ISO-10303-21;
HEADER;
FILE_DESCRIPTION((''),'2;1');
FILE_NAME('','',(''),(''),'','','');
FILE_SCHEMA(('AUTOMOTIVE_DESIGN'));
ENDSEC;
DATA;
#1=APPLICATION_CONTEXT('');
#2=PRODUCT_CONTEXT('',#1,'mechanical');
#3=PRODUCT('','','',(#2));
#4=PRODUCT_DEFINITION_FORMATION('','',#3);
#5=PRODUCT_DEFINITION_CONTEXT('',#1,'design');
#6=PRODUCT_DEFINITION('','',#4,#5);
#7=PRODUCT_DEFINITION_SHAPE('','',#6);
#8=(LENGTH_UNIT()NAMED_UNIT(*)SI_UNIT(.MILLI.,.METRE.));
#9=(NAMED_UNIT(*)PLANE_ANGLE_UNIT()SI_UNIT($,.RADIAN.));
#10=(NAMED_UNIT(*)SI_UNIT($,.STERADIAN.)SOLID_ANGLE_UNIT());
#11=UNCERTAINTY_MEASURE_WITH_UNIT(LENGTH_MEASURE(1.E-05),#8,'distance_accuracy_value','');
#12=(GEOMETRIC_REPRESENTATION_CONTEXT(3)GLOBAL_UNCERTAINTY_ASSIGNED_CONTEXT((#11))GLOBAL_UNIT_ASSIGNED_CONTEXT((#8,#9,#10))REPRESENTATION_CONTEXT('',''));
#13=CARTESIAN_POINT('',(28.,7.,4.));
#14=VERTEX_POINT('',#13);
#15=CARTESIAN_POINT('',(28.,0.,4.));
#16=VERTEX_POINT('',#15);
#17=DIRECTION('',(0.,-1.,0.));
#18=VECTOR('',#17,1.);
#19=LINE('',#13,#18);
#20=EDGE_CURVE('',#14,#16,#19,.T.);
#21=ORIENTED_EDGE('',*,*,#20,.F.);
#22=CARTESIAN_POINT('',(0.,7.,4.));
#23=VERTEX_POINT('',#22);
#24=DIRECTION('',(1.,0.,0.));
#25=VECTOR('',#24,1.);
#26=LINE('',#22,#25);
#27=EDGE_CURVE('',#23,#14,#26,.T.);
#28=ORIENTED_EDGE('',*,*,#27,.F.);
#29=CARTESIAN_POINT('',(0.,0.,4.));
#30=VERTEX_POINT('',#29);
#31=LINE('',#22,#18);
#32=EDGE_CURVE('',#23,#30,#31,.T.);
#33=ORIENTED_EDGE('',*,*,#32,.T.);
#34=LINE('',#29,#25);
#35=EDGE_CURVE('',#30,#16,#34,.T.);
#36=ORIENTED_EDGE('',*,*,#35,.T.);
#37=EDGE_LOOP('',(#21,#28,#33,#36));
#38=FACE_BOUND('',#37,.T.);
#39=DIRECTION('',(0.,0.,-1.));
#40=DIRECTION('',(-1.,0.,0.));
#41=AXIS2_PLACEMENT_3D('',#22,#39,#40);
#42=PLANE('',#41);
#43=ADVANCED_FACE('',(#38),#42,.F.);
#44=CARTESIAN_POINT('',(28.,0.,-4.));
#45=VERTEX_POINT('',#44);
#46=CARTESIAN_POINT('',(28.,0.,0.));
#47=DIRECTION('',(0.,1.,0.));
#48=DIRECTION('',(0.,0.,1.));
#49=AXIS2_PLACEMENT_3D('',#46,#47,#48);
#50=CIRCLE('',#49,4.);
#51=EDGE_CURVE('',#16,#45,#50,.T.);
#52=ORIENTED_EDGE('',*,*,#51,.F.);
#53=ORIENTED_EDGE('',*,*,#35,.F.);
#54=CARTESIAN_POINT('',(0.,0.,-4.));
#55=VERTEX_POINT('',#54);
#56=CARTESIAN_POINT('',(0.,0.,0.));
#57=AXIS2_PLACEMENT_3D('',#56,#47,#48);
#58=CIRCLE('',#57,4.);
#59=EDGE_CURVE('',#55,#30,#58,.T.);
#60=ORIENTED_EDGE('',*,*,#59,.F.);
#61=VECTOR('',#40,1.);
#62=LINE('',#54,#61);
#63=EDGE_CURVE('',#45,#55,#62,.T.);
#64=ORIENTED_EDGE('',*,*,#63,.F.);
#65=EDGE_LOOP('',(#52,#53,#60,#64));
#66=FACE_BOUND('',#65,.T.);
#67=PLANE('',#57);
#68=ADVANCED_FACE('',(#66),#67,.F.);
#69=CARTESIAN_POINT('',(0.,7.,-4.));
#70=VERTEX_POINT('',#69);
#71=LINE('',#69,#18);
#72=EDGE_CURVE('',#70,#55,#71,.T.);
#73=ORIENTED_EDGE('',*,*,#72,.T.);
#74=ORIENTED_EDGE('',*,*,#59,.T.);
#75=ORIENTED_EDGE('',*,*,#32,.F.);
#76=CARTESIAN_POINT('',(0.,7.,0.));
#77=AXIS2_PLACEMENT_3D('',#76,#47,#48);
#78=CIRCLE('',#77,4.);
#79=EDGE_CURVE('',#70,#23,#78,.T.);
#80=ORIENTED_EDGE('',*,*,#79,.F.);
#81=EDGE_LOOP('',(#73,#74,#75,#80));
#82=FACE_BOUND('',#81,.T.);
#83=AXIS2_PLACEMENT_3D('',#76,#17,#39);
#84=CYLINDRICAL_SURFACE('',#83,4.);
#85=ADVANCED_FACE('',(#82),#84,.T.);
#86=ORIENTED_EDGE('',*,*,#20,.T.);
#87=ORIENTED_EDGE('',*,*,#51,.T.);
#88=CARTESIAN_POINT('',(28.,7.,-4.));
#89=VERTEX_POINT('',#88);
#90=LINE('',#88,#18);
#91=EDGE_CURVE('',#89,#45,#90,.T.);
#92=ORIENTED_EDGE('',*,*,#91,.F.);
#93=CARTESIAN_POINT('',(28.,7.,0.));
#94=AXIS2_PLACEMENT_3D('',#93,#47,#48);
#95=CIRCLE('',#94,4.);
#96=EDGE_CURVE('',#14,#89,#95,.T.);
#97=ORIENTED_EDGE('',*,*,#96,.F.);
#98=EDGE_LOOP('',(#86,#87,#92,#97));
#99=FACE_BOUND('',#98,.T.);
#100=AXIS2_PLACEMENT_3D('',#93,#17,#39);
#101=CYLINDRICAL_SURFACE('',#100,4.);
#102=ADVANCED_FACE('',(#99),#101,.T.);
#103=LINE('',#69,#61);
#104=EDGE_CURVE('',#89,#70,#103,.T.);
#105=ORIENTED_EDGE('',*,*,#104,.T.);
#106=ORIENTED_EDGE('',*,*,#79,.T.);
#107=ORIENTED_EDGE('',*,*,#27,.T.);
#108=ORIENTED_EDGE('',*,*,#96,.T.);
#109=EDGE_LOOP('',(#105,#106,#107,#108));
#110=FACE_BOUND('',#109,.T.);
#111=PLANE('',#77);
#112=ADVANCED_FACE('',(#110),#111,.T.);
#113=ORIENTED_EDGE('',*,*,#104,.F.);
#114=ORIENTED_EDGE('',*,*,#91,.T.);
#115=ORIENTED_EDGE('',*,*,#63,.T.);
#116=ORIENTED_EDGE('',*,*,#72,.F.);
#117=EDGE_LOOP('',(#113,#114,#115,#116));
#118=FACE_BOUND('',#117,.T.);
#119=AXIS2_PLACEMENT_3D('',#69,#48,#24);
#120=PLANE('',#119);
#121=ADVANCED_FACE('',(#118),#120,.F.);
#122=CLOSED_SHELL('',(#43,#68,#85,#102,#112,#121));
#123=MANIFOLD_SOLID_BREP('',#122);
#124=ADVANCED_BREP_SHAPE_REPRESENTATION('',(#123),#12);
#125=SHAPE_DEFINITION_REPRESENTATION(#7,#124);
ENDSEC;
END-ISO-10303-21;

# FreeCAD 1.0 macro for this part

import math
import FreeCAD as App
import Part
import Sketcher

doc = App.newDocument("Part")
body = doc.addObject("PartDesign::Body", "Body")

sketch1 = body.newObject("Sketcher::SketchObject", "Sketch")
sketch1.AttachmentSupport = (doc.getObject("XZ_Plane"), [""])
sketch1.MapMode = "FlatFace"
sketch1.addGeometry([
    Part.LineSegment(App.Vector(28, -4, 0), App.Vector(0, -4, 0)),
    Part.ArcOfCircle(Part.Circle(App.Vector(0, 0, 0), App.Vector(0, 0, 1), 4), math.radians(90), math.radians(270)),
    Part.LineSegment(App.Vector(0, 4, 0), App.Vector(28, 4, 0)),
    Part.ArcOfCircle(Part.Circle(App.Vector(28, 0, 0), App.Vector(0, 0, 1), 4), math.radians(-90), math.radians(90)),
], False)
sketch1.addConstraint([
    Sketcher.Constraint("Tangent", 0, 2, 1, 2),
    Sketcher.Constraint("Tangent", 1, 1, 2, 1),
    Sketcher.Constraint("Tangent", 2, 2, 3, 2),
    Sketcher.Constraint("Tangent", 3, 1, 0, 1),
    Sketcher.Constraint("Horizontal", 0),
    Sketcher.Constraint("Horizontal", 2),
    Sketcher.Constraint("Coincident", 1, 3, -1, 1),
    Sketcher.Constraint("Radius", 1, 4.0),
    Sketcher.Constraint("DistanceX", 0, 2, 0, 1, 28.0),
])
pad1 = body.newObject("PartDesign::Pad", "Pad")
pad1.Profile = sketch1
pad1.Length = 7
pad1.Reversed = True

doc.recompute()
